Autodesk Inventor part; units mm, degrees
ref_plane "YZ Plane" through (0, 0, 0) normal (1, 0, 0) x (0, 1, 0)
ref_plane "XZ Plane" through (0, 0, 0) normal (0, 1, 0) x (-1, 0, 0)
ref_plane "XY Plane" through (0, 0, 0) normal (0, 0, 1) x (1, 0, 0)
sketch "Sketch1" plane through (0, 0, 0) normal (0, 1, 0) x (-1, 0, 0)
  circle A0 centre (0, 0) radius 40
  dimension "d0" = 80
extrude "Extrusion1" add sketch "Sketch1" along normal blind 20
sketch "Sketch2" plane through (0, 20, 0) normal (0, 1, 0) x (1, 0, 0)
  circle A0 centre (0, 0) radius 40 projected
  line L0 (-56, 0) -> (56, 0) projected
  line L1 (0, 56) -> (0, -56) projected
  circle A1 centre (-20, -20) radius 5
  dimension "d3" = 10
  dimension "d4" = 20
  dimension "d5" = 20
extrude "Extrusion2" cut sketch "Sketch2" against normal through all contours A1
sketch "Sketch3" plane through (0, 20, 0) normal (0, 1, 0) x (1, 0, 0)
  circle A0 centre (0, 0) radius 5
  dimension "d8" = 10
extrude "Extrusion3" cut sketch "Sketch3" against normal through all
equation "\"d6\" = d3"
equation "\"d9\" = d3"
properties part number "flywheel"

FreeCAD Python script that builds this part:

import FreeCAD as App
import Part
import Sketcher

doc = App.newDocument("Part")
body = doc.addObject("PartDesign::Body", "Body")

# Sketch on XZ plane
sketch1 = body.newObject("Sketcher::SketchObject", "Sketch")
sketch1.AttachmentSupport = (doc.getObject("XZ_Plane"), [""])
sketch1.MapMode = "FlatFace"
sketch1.addGeometry(Part.Circle(App.Vector(0, 0, 0), App.Vector(0, 0, 1), 40), False)
sketch1.addConstraint(Sketcher.Constraint("Coincident", 0, 3, -1, 1))
sketch1.addConstraint(Sketcher.Constraint("Diameter", 0, 80.0))
pad1 = body.newObject("PartDesign::Pad", "Pad")
pad1.Profile = sketch1
pad1.Length = 20
pad1.Reversed = True

# Sketch on XZ plane
sketch2 = body.newObject("Sketcher::SketchObject", "Sketch001")
sketch2.AttachmentSupport = (doc.getObject("XZ_Plane"), [""])
sketch2.MapMode = "FlatFace"
sketch2.AttachmentOffset = App.Placement(App.Vector(0, 0, -20), App.Rotation())
sketch2.addGeometry(Part.Circle(App.Vector(-20, 20, 0), App.Vector(0, 0, 1), 5), False)
sketch2.addConstraint(Sketcher.Constraint("Diameter", 0, 10.0))
sketch2.addConstraint(Sketcher.Constraint("DistanceX", 0, 3, -1, 1, 20.0))
sketch2.addConstraint(Sketcher.Constraint("DistanceY", -1, 1, 0, 3, 20.0))
pocket1 = body.newObject("PartDesign::Pocket", "Pocket")
pocket1.Profile = sketch2
pocket1.Type = "ThroughAll"
pocket1.Reversed = True

# Sketch on XZ plane
sketch3 = body.newObject("Sketcher::SketchObject", "Sketch002")
sketch3.AttachmentSupport = (doc.getObject("XZ_Plane"), [""])
sketch3.MapMode = "FlatFace"
sketch3.AttachmentOffset = App.Placement(App.Vector(0, 0, -20), App.Rotation())
sketch3.addGeometry(Part.Circle(App.Vector(0, 0, 0), App.Vector(0, 0, 1), 5), False)
sketch3.addConstraint(Sketcher.Constraint("Coincident", 0, 3, -1, 1))
sketch3.addConstraint(Sketcher.Constraint("Diameter", 0, 10.0))
pocket2 = body.newObject("PartDesign::Pocket", "Pocket001")
pocket2.Profile = sketch3
pocket2.Type = "ThroughAll"
pocket2.Reversed = True

doc.recompute()
